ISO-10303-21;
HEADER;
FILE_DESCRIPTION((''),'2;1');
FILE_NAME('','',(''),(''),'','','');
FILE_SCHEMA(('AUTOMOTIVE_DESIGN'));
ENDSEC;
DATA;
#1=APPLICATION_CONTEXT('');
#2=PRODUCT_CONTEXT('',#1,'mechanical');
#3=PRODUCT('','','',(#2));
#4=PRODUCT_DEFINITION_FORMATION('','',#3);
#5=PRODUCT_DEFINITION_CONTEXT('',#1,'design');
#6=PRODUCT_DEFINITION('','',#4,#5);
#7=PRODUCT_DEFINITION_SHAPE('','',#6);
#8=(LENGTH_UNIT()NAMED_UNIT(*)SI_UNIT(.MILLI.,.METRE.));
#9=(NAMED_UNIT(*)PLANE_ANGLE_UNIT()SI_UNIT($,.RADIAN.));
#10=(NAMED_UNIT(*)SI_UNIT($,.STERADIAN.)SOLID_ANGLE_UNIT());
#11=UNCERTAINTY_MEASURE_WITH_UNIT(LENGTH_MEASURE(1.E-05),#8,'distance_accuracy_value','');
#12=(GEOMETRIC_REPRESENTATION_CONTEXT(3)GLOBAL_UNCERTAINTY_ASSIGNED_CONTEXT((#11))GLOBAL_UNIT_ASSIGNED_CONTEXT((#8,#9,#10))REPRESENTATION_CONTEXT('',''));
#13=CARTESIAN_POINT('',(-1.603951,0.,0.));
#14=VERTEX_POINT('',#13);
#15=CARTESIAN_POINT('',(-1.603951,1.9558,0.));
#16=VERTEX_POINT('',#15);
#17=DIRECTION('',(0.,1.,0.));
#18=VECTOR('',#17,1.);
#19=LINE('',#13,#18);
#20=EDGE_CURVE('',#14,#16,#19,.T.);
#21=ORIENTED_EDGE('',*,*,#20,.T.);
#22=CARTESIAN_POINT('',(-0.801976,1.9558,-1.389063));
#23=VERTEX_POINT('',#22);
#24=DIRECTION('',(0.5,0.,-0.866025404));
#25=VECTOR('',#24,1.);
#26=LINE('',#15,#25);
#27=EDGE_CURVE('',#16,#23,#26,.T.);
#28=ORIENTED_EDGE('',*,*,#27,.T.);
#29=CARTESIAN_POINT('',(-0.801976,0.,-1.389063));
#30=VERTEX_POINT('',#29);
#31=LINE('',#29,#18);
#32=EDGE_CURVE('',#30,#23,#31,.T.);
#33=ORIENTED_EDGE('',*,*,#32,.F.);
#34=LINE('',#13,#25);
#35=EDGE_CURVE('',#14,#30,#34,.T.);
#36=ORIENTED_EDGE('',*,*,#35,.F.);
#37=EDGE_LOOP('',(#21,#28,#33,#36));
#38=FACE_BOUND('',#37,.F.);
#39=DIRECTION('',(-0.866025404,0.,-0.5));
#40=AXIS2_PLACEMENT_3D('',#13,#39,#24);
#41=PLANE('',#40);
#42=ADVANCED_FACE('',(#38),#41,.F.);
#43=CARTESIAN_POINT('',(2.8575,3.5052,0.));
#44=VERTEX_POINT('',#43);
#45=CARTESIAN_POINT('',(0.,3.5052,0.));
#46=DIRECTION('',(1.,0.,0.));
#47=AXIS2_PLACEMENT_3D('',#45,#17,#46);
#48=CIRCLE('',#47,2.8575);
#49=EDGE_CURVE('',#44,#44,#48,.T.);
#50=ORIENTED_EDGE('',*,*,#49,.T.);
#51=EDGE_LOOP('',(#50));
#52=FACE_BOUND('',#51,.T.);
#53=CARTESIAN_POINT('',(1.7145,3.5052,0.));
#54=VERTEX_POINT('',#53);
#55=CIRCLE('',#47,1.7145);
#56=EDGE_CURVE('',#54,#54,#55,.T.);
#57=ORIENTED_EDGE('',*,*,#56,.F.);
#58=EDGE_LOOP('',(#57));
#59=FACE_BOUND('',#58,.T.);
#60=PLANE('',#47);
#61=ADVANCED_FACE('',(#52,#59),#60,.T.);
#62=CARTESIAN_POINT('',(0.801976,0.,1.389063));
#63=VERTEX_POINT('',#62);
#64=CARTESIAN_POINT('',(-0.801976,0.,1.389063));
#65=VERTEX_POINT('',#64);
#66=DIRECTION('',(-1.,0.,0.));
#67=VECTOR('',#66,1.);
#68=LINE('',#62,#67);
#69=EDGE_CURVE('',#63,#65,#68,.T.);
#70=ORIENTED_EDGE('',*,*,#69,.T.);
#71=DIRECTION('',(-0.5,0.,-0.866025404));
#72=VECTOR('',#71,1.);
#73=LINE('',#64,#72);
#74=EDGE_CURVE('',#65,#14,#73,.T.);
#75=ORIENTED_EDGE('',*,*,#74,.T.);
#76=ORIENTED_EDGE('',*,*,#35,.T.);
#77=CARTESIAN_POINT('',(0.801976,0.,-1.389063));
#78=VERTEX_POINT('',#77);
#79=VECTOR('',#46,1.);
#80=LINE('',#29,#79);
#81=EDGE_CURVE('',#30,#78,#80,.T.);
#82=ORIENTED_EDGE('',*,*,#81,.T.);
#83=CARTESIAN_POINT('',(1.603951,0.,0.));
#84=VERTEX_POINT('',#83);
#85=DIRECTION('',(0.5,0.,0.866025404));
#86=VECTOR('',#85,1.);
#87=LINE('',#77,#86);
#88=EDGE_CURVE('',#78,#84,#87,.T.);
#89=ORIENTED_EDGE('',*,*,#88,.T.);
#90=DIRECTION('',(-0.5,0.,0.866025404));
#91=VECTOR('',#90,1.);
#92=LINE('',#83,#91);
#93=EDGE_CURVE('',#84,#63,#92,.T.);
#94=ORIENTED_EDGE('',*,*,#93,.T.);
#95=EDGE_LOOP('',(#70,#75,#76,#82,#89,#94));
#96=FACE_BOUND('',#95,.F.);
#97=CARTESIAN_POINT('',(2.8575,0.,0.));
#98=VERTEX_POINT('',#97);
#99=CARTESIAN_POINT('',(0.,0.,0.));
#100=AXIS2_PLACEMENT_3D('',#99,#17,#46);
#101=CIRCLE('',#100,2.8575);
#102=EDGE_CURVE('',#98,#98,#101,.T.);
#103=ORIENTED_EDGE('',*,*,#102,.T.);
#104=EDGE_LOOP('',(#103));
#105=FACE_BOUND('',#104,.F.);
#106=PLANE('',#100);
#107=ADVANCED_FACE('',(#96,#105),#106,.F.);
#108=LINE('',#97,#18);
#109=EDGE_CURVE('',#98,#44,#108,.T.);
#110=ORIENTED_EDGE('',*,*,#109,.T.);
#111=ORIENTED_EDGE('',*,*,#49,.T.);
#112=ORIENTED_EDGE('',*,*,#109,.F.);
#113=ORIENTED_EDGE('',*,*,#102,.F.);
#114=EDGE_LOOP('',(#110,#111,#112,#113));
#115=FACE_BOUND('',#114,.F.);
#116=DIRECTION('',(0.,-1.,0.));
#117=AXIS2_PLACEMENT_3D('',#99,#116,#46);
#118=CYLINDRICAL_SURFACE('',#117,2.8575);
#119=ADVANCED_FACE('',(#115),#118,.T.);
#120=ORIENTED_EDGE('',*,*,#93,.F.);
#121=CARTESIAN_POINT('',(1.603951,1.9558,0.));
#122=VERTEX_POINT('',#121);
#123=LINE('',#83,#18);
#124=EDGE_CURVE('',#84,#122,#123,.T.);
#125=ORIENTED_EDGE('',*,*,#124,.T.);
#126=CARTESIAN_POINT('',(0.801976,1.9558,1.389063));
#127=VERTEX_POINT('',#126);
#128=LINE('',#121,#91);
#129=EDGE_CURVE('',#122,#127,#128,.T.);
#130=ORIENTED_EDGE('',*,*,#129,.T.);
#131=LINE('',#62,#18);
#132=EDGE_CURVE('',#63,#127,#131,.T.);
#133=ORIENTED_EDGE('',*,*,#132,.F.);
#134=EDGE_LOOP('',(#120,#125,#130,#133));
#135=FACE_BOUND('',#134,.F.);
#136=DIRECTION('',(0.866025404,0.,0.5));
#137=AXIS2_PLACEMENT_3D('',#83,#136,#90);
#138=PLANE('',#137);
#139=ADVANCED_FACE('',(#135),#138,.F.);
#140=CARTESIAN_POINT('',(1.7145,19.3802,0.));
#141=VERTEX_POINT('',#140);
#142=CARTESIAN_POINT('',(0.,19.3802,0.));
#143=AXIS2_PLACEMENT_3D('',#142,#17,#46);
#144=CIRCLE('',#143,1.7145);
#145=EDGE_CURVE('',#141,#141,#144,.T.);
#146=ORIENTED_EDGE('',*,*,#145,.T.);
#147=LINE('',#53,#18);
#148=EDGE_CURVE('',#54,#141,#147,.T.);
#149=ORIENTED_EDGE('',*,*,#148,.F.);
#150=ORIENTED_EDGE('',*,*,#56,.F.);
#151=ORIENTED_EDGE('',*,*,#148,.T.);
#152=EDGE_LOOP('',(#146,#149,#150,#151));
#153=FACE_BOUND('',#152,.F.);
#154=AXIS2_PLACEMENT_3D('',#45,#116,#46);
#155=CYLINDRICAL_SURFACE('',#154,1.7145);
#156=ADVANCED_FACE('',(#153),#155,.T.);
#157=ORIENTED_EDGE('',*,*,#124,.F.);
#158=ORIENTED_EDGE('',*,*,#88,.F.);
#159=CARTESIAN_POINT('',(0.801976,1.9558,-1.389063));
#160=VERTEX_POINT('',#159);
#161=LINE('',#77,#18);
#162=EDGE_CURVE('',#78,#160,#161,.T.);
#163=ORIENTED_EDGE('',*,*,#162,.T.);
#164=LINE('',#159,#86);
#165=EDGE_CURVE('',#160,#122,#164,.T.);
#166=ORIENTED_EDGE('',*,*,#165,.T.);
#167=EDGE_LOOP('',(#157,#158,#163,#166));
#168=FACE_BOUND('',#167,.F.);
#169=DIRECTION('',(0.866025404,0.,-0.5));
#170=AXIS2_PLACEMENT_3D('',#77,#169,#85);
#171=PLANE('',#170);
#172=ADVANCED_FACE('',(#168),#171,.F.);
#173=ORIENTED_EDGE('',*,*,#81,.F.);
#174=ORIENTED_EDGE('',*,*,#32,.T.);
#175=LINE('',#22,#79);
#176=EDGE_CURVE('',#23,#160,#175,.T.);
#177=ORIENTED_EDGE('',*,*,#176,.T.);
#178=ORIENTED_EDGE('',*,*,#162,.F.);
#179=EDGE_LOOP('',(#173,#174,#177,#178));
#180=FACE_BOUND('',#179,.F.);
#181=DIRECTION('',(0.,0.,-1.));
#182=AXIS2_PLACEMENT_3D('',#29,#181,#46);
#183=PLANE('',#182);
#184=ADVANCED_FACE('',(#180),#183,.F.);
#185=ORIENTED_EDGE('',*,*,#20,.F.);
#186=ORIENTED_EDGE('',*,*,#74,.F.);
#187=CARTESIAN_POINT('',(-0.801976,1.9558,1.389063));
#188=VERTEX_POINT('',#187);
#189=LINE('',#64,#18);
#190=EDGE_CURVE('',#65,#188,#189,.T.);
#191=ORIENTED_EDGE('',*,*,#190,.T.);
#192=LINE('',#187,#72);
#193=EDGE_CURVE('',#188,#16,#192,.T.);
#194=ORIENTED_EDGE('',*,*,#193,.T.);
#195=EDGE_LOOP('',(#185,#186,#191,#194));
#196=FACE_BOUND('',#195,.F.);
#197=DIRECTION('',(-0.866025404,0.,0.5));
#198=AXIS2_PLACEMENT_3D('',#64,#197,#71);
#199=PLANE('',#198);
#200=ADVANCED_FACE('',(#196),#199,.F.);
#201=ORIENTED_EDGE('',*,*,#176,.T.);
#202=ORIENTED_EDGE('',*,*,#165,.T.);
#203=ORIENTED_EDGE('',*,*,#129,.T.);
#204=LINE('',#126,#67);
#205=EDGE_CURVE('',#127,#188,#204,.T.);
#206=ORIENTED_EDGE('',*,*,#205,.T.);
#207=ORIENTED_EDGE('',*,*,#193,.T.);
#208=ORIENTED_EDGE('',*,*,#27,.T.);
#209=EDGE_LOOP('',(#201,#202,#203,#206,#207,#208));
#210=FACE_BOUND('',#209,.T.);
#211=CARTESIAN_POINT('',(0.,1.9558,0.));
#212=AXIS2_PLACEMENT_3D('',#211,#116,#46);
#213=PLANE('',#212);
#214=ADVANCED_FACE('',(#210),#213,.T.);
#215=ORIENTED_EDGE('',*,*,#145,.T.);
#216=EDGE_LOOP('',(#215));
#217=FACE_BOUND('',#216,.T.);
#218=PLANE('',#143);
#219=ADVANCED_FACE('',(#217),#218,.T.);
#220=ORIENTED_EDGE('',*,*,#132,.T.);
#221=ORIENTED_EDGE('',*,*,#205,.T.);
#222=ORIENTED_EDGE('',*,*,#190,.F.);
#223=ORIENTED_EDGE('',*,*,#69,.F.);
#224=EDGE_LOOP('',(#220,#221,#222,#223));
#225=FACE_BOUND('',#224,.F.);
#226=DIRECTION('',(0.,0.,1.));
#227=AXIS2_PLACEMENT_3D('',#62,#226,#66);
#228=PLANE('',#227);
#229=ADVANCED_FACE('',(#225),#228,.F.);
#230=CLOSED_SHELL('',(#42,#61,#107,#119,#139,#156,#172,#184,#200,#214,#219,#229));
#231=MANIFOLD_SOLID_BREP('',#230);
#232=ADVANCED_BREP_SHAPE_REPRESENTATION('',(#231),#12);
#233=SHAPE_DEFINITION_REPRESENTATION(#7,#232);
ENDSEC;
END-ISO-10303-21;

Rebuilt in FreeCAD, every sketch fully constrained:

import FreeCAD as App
import Part
import Sketcher

V = App.Vector
Q = App.Units.Quantity


def add_polygon(sketch, points):
    """Adds a closed chain of lines whose ends are joined by coincident constraints."""
    first, n = sketch.GeometryCount, len(points)
    for a, b in zip(points, points[1:] + points[:1]):
        sketch.addGeometry(Part.LineSegment(App.Vector(*a, 0), App.Vector(*b, 0)), False)
    for i in range(n):
        sketch.addConstraint(Sketcher.Constraint("Coincident", first + i, 2, first + (i + 1) % n, 1))

doc = App.newDocument("Part")
params = doc.addObject("Spreadsheet::Sheet", "Params")
for row, (alias, value) in enumerate([
    ("sketch1_diameter", "0.225 in"),
    ("pad1_length", "0.138 in"),
    ("pocket1_length", "0.077 in"),
    ("sketch3_diameter", "0.135 in"),
    ("pad2_length", "0.625 in"),
], start=1):
    params.set(f"A{row}", alias)
    params.set(f"B{row}", "=" + value)
    params.setAlias(f"B{row}", alias)

body = doc.addObject("PartDesign::Body", "Body")

# Sketch on XZ plane
sketch1 = doc.addObject("Sketcher::SketchObject", "Sketch")
body.addObject(sketch1)
sketch1.AttachmentSupport = (doc.XZ_Plane, [""])
sketch1.MapMode = "FlatFace"
sketch1.addGeometry(Part.Circle(V(0, 0, 0), V(0, 0, 1), 2.9), False)
sketch1.addConstraint(Sketcher.Constraint("Coincident", 0, 3, -1, 1))
sketch1.addConstraint(Sketcher.Constraint("Diameter", 0, Q("0.225 in")))
sketch1.setExpression("Constraints[1]", "Params.sketch1_diameter")
pad1 = doc.addObject("PartDesign::Pad", "Pad")
body.addObject(pad1)
pad1.Profile = sketch1
pad1.setExpression("Length", "Params.pad1_length")
pad1.Reversed = True

# Sketch on XZ plane
sketch2 = doc.addObject("Sketcher::SketchObject", "Sketch001")
body.addObject(sketch2)
sketch2.AttachmentSupport = (doc.XZ_Plane, [""])
sketch2.MapMode = "FlatFace"
add_polygon(sketch2, [(1.6, 0), (0.8, 1.4), (-0.8, 1.4), (-1.6, 0), (-0.8, -1.4), (0.8, -1.4)])  # lines 0-5
sketch2.addConstraint(Sketcher.Constraint("Horizontal", 1))
sketch2.addConstraint(Sketcher.Constraint("Horizontal", 4))
sketch2.addConstraint(Sketcher.Constraint("Symmetric", 0, 2, 3, 2, -1, 1))
sketch2.addConstraint(Sketcher.Constraint("Symmetric", 2, 2, 5, 2, -1, 1))
sketch2.addConstraint(Sketcher.Constraint("PointOnObject", 2, 2, -1))
sketch2.addConstraint(Sketcher.Constraint("Parallel", 2, 5))
sketch2.addConstraint(Sketcher.Constraint("Vertical", 1, 2, 3, 2))
sketch2.addConstraint(Sketcher.Constraint("Angle", 0, Q("120 deg")))
sketch2.addConstraint(Sketcher.Constraint("DistanceY", 3, 2, 1, 2, Q("0.109375 in")))
sketch2.addConstraint(Sketcher.Constraint("DistanceX", 1, 2, 1, 1, 1.603951))
pocket1 = doc.addObject("PartDesign::Pocket", "Pocket")
body.addObject(pocket1)
pocket1.Profile = sketch2
pocket1.setExpression("Length", "Params.pocket1_length")

# Sketch on XZ plane
sketch3 = doc.addObject("Sketcher::SketchObject", "Sketch002")
body.addObject(sketch3)
sketch3.AttachmentSupport = (doc.XZ_Plane, [""])
sketch3.MapMode = "FlatFace"
sketch3.AttachmentOffset = App.Placement(V(0, 0, -0.138 * 25.4), App.Rotation())
sketch3.addGeometry(Part.Circle(V(0, 0, 0), V(0, 0, 1), 1.7), False)
sketch3.addConstraint(Sketcher.Constraint("Coincident", 0, 3, -1, 1))
sketch3.addConstraint(Sketcher.Constraint("Diameter", 0, Q("0.135 in")))
sketch3.setExpression("Constraints[1]", "Params.sketch3_diameter")
pad2 = doc.addObject("PartDesign::Pad", "Pad001")
body.addObject(pad2)
pad2.Profile = sketch3
pad2.setExpression("Length", "Params.pad2_length")
pad2.Reversed = True

doc.recompute()
